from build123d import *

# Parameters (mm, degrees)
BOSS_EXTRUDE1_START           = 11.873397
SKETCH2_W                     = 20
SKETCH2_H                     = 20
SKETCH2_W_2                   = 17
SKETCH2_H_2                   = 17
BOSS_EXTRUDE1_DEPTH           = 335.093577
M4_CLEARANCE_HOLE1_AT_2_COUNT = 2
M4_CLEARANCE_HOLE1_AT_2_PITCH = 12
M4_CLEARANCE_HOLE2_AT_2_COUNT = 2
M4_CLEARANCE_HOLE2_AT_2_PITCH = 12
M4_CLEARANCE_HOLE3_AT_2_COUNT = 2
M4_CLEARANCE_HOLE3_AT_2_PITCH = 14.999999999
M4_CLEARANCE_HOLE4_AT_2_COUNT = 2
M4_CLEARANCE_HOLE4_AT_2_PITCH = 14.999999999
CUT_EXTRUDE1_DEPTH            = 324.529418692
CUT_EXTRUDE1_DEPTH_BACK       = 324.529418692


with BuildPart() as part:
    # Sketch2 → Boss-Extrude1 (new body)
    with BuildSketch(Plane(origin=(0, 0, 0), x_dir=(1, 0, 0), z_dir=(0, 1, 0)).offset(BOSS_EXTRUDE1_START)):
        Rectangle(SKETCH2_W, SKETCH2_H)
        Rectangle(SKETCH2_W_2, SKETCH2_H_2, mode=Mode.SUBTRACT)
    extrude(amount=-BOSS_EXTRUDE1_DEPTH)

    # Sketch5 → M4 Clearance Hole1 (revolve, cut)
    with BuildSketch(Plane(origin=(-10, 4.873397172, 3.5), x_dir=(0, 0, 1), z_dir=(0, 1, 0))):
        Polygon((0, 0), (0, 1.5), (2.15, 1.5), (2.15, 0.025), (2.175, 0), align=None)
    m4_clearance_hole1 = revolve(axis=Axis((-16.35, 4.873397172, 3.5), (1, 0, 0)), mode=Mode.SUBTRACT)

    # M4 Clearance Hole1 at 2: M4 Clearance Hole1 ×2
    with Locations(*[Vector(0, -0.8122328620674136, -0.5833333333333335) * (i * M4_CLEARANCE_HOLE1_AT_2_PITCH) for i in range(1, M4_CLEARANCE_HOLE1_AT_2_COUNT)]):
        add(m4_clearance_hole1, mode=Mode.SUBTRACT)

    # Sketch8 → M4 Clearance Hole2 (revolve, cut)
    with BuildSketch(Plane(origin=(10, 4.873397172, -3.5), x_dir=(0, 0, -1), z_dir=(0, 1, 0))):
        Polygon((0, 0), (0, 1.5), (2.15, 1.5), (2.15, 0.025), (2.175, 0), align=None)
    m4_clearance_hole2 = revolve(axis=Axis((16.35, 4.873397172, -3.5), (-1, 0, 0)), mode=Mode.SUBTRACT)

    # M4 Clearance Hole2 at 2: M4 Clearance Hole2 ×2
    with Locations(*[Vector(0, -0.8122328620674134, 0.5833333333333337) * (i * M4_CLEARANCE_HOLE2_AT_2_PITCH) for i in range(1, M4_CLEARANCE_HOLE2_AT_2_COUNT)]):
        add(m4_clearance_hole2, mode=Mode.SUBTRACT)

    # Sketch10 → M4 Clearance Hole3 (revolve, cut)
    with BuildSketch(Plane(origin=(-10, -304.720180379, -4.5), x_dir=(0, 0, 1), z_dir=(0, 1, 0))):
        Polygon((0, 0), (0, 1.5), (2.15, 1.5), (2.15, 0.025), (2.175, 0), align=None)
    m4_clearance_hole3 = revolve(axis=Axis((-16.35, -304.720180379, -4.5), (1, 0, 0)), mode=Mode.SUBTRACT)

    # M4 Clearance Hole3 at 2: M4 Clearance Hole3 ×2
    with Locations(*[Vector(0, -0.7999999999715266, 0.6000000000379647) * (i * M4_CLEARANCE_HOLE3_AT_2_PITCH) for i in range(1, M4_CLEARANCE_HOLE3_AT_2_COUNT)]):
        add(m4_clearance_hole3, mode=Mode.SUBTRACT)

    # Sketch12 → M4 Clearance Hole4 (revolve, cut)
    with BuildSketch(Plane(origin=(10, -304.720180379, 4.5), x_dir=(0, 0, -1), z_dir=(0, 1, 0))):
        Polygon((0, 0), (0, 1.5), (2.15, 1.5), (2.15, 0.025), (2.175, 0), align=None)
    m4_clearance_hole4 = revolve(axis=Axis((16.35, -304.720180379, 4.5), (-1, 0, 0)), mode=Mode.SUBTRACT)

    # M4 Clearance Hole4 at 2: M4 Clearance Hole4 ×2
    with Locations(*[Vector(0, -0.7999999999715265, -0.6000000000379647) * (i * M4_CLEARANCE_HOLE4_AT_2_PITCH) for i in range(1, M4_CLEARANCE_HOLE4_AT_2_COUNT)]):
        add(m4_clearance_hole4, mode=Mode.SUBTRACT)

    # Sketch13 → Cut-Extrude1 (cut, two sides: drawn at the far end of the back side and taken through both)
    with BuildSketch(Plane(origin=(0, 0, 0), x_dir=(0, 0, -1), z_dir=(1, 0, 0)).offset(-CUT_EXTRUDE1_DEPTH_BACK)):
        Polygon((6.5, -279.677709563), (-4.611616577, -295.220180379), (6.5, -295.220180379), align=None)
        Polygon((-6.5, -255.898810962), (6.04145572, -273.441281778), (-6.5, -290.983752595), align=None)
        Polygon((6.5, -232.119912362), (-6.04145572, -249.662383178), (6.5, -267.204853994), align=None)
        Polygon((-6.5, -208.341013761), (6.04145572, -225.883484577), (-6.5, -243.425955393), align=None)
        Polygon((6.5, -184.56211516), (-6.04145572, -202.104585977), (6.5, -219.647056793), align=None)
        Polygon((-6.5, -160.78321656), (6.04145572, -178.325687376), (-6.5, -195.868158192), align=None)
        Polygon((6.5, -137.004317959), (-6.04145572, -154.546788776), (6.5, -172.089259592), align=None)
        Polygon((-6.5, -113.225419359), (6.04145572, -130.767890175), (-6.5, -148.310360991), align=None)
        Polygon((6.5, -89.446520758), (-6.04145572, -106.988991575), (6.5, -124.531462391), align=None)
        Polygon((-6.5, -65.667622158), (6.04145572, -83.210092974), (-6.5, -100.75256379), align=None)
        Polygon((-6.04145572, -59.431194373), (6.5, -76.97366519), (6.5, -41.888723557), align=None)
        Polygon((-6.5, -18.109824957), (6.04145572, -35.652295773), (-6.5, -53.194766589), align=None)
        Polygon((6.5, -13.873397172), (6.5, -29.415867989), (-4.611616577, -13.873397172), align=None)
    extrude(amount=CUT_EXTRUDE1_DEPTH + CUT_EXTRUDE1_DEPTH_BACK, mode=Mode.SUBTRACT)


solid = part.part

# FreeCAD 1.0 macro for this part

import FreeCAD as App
import Part
import Sketcher

V = App.Vector
Q = App.Units.Quantity


def add_polygon(sketch, points):
    """Adds a closed chain of lines whose ends are joined by coincident constraints."""
    first, n = sketch.GeometryCount, len(points)
    for a, b in zip(points, points[1:] + points[:1]):
        sketch.addGeometry(Part.LineSegment(App.Vector(*a, 0), App.Vector(*b, 0)), False)
    for i in range(n):
        sketch.addConstraint(Sketcher.Constraint("Coincident", first + i, 2, first + (i + 1) % n, 1))

doc = App.newDocument("Part")
body = doc.addObject("PartDesign::Body", "Body")

# Sketch on XZ plane
sketch1 = body.newObject("Sketcher::SketchObject", "Sketch")
sketch1.AttachmentSupport = (doc.getObject("XZ_Plane"), [""])
sketch1.MapMode = "FlatFace"
sketch1.AttachmentOffset = App.Placement(V(0, 0, -11.873397), App.Rotation())
add_polygon(sketch1, [(-10, -10), (-10, 10), (10, 10), (10, -10)])  # lines 0-3
add_polygon(sketch1, [(8.5, 8.5), (-8.5, 8.5), (-8.5, -8.5), (8.5, -8.5)])  # lines 4-7
sketch1.addConstraint([
    Sketcher.Constraint("Vertical", 0),
    Sketcher.Constraint("Horizontal", 1),
    Sketcher.Constraint("Vertical", 2),
    Sketcher.Constraint("Horizontal", 3),
    Sketcher.Constraint("Horizontal", 4),
    Sketcher.Constraint("Vertical", 5),
    Sketcher.Constraint("Horizontal", 6),
    Sketcher.Constraint("Vertical", 7),
    Sketcher.Constraint("Symmetric", 0, 2, 2, 2, -1, 1),
    Sketcher.Constraint("Symmetric", 4, 2, 6, 2, -1, 1),
    Sketcher.Constraint("Equal", 3, 0),
    Sketcher.Constraint("Equal", 6, 5),
    Sketcher.Constraint("DistanceX", 1, 1, 1, 2, 20.0),
    Sketcher.Constraint("DistanceX", 4, 2, 4, 1, 17.0),
])
pad1 = body.newObject("PartDesign::Pad", "Pad")
pad1.Profile = sketch1
pad1.Length = 335.093577

# Sketch on XZ plane
sketch2 = body.newObject("Sketcher::SketchObject", "Sketch001")
sketch2.AttachmentSupport = (doc.getObject("XZ_Plane"), [""])
sketch2.MapMode = "FlatFace"
sketch2.AttachmentOffset = App.Placement(V(0, 0, -4.873397), App.Rotation())
add_polygon(sketch2, [(-8.5, 3.5), (-10, 3.5), (-10, 5.675), (-9.975, 5.65), (-8.5, 5.65)])  # lines 0-4
sketch2.addGeometry(Part.LineSegment(V(-10, 3.5, 0), V(-8.5, 3.5, 0)), True)  # axis
sketch2.addConstraint([
    Sketcher.Constraint("Horizontal", 0),
    Sketcher.Constraint("Vertical", 1),
    Sketcher.Constraint("Horizontal", 3),
    Sketcher.Constraint("Vertical", 4),
    Sketcher.Constraint("Horizontal", 5),
    Sketcher.Constraint("Coincident", 5, 1, 0, 2),
    Sketcher.Constraint("Vertical", 3, 2, 5, 2),
    Sketcher.Constraint("Angle", 2, Q("-45 deg")),
    Sketcher.Constraint("DistanceX", 0, 2, 0, 1, 1.5),
    Sketcher.Constraint("DistanceX", 0, 2, -1, 1, 10.0),
    Sketcher.Constraint("DistanceY", 4, 2, 4, 1, 2.15),
    Sketcher.Constraint("DistanceY", -1, 1, 0, 2, 3.5),
    Sketcher.Constraint("DistanceX", 3, 1, 3, 2, 1.475),
])
groove = body.newObject("PartDesign::Groove", "Groove")
groove.Profile = sketch2
groove.ReferenceAxis = (sketch2, ["Axis0"])
groove.Angle = 360
doc.recompute()

datumline = body.newObject("PartDesign::Line", "DatumLine")
datumline.Placement = App.Placement(V(0, 0, 0), App.Rotation(V(0, 0, 1), V(0, -0.812232862, -0.583333333)))
linearpattern = body.newObject("PartDesign::LinearPattern", "LinearPattern")
linearpattern.Originals = [groove]
linearpattern.Direction = (datumline, [""])
linearpattern.Mode = "offset"
linearpattern.Offset = 12
linearpattern.Occurrences = 2
body.Tip = linearpattern

# Sketch on XZ plane
sketch3 = body.newObject("Sketcher::SketchObject", "Sketch002")
sketch3.AttachmentSupport = (doc.getObject("XZ_Plane"), [""])
sketch3.MapMode = "FlatFace"
sketch3.AttachmentOffset = App.Placement(V(0, 0, -4.873397), App.Rotation())
add_polygon(sketch3, [(8.5, -3.5), (10, -3.5), (10, -5.675), (9.975, -5.65), (8.5, -5.65)])  # lines 0-4
sketch3.addGeometry(Part.LineSegment(V(10, -3.5, 0), V(8.5, -3.5, 0)), True)  # axis
sketch3.addConstraint([
    Sketcher.Constraint("Horizontal", 0),
    Sketcher.Constraint("Vertical", 1),
    Sketcher.Constraint("Horizontal", 3),
    Sketcher.Constraint("Vertical", 4),
    Sketcher.Constraint("Horizontal", 5),
    Sketcher.Constraint("Coincident", 5, 1, 0, 2),
    Sketcher.Constraint("Vertical", 3, 2, 5, 2),
    Sketcher.Constraint("Angle", 2, Q("135 deg")),
    Sketcher.Constraint("DistanceX", 0, 1, 0, 2, 1.5),
    Sketcher.Constraint("DistanceX", -1, 1, 0, 2, 10.0),
    Sketcher.Constraint("DistanceY", 4, 1, 4, 2, 2.15),
    Sketcher.Constraint("DistanceY", 0, 2, -1, 1, 3.5),
    Sketcher.Constraint("DistanceX", 3, 2, 3, 1, 1.475),
])
groove2 = body.newObject("PartDesign::Groove", "Groove001")
groove2.Profile = sketch3
groove2.ReferenceAxis = (sketch3, ["Axis0"])
groove2.Angle = 360
doc.recompute()

datumline2 = body.newObject("PartDesign::Line", "DatumLine001")
datumline2.Placement = App.Placement(V(0, 0, 0), App.Rotation(V(0, 0, 1), V(0, -0.812232862, 0.583333333)))
linearpattern2 = body.newObject("PartDesign::LinearPattern", "LinearPattern001")
linearpattern2.Originals = [groove2]
linearpattern2.Direction = (datumline2, [""])
linearpattern2.Mode = "offset"
linearpattern2.Offset = 12
linearpattern2.Occurrences = 2
body.Tip = linearpattern2

# Sketch on XZ plane
sketch4 = body.newObject("Sketcher::SketchObject", "Sketch003")
sketch4.AttachmentSupport = (doc.getObject("XZ_Plane"), [""])
sketch4.MapMode = "FlatFace"
sketch4.AttachmentOffset = App.Placement(V(0, 0, 304.72018), App.Rotation())
add_polygon(sketch4, [(-8.5, -4.5), (-10, -4.5), (-10, -2.325), (-9.975, -2.35), (-8.5, -2.35)])  # lines 0-4
sketch4.addGeometry(Part.LineSegment(V(-10, -4.5, 0), V(-8.5, -4.5, 0)), True)  # axis
sketch4.addConstraint([
    Sketcher.Constraint("Horizontal", 0),
    Sketcher.Constraint("Vertical", 1),
    Sketcher.Constraint("Horizontal", 3),
    Sketcher.Constraint("Vertical", 4),
    Sketcher.Constraint("Horizontal", 5),
    Sketcher.Constraint("Coincident", 5, 1, 0, 2),
    Sketcher.Constraint("Vertical", 3, 2, 5, 2),
    Sketcher.Constraint("Angle", 2, Q("-45 deg")),
    Sketcher.Constraint("DistanceX", 0, 2, 0, 1, 1.5),
    Sketcher.Constraint("DistanceX", 0, 2, -1, 1, 10.0),
    Sketcher.Constraint("DistanceY", 4, 2, 4, 1, 2.15),
    Sketcher.Constraint("DistanceY", 0, 2, -1, 1, 4.5),
    Sketcher.Constraint("DistanceX", 3, 1, 3, 2, 1.475),
])
groove3 = body.newObject("PartDesign::Groove", "Groove002")
groove3.Profile = sketch4
groove3.ReferenceAxis = (sketch4, ["Axis0"])
groove3.Angle = 360
doc.recompute()

datumline3 = body.newObject("PartDesign::Line", "DatumLine002")
datumline3.Placement = App.Placement(V(0, 0, 0), App.Rotation(V(0, 0, 1), V(0, -0.8, 0.6)))
linearpattern3 = body.newObject("PartDesign::LinearPattern", "LinearPattern002")
linearpattern3.Originals = [groove3]
linearpattern3.Direction = (datumline3, [""])
linearpattern3.Mode = "offset"
linearpattern3.Offset = 15
linearpattern3.Occurrences = 2
body.Tip = linearpattern3

# Sketch on XZ plane
sketch5 = body.newObject("Sketcher::SketchObject", "Sketch004")
sketch5.AttachmentSupport = (doc.getObject("XZ_Plane"), [""])
sketch5.MapMode = "FlatFace"
sketch5.AttachmentOffset = App.Placement(V(0, 0, 304.72018), App.Rotation())
add_polygon(sketch5, [(8.5, 4.5), (10, 4.5), (10, 2.325), (9.975, 2.35), (8.5, 2.35)])  # lines 0-4
sketch5.addGeometry(Part.LineSegment(V(10, 4.5, 0), V(8.5, 4.5, 0)), True)  # axis
sketch5.addConstraint([
    Sketcher.Constraint("Horizontal", 0),
    Sketcher.Constraint("Vertical", 1),
    Sketcher.Constraint("Horizontal", 3),
    Sketcher.Constraint("Vertical", 4),
    Sketcher.Constraint("Horizontal", 5),
    Sketcher.Constraint("Coincident", 5, 1, 0, 2),
    Sketcher.Constraint("Vertical", 3, 2, 5, 2),
    Sketcher.Constraint("Angle", 2, Q("135 deg")),
    Sketcher.Constraint("DistanceX", 0, 1, 0, 2, 1.5),
    Sketcher.Constraint("DistanceX", -1, 1, 0, 2, 10.0),
    Sketcher.Constraint("DistanceY", 4, 1, 4, 2, 2.15),
    Sketcher.Constraint("DistanceY", -1, 1, 0, 2, 4.5),
    Sketcher.Constraint("DistanceX", 3, 2, 3, 1, 1.475),
])
groove4 = body.newObject("PartDesign::Groove", "Groove003")
groove4.Profile = sketch5
groove4.ReferenceAxis = (sketch5, ["Axis0"])
groove4.Angle = 360
doc.recompute()

datumline4 = body.newObject("PartDesign::Line", "DatumLine003")
datumline4.Placement = App.Placement(V(0, 0, 0), App.Rotation(V(0, 0, 1), V(0, -0.8, -0.6)))
linearpattern4 = body.newObject("PartDesign::LinearPattern", "LinearPattern003")
linearpattern4.Originals = [groove4]
linearpattern4.Direction = (datumline4, [""])
linearpattern4.Mode = "offset"
linearpattern4.Offset = 15
linearpattern4.Occurrences = 2
body.Tip = linearpattern4

# Sketch on YZ plane
sketch6 = body.newObject("Sketcher::SketchObject", "Sketch005")
sketch6.AttachmentSupport = (doc.getObject("YZ_Plane"), [""])
sketch6.MapMode = "FlatFace"
add_polygon(sketch6, [(-279.67771, -6.5), (-295.22018, 4.611617), (-295.22018, -6.5)])  # lines 0-2
add_polygon(sketch6, [(-273.441282, -6.041456), (-255.898811, 6.5), (-290.983753, 6.5)])  # lines 3-5
add_polygon(sketch6, [(-232.119912, -6.5), (-249.662383, 6.041456), (-267.204854, -6.5)])  # lines 6-8
add_polygon(sketch6, [(-225.883485, -6.041456), (-208.341014, 6.5), (-243.425955, 6.5)])  # lines 9-11
add_polygon(sketch6, [(-184.562115, -6.5), (-202.104586, 6.041456), (-219.647057, -6.5)])  # lines 12-14
add_polygon(sketch6, [(-178.325687, -6.041456), (-160.783217, 6.5), (-195.868158, 6.5)])  # lines 15-17
add_polygon(sketch6, [(-137.004318, -6.5), (-154.546789, 6.041456), (-172.08926, -6.5)])  # lines 18-20
add_polygon(sketch6, [(-130.76789, -6.041456), (-113.225419, 6.5), (-148.310361, 6.5)])  # lines 21-23
add_polygon(sketch6, [(-89.446521, -6.5), (-106.988992, 6.041456), (-124.531462, -6.5)])  # lines 24-26
add_polygon(sketch6, [(-83.210093, -6.041456), (-65.667622, 6.5), (-100.752564, 6.5)])  # lines 27-29
add_polygon(sketch6, [(-59.431194, 6.041456), (-76.973665, -6.5), (-41.888724, -6.5)])  # lines 30-32
add_polygon(sketch6, [(-35.652296, -6.041456), (-18.109825, 6.5), (-53.194767, 6.5)])  # lines 33-35
add_polygon(sketch6, [(-29.415868, -6.5), (-13.873397, -6.5), (-13.873397, 4.611617)])  # lines 36-38
sketch6.addConstraint([
    Sketcher.Constraint("Vertical", 1),
    Sketcher.Constraint("Horizontal", 2),
    Sketcher.Constraint("Horizontal", 4),
    Sketcher.Constraint("Horizontal", 8),
    Sketcher.Constraint("Horizontal", 10),
    Sketcher.Constraint("Horizontal", 14),
    Sketcher.Constraint("Horizontal", 16),
    Sketcher.Constraint("Horizontal", 20),
    Sketcher.Constraint("Horizontal", 22),
    Sketcher.Constraint("Horizontal", 26),
    Sketcher.Constraint("Horizontal", 28),
    Sketcher.Constraint("Horizontal", 31),
    Sketcher.Constraint("Horizontal", 34),
    Sketcher.Constraint("Horizontal", 36),
    Sketcher.Constraint("Vertical", 37),
    Sketcher.Constraint("Parallel", 0, 5),
    Sketcher.Constraint("Parallel", 5, 6),
    Sketcher.Constraint("Parallel", 3, 7),
    Sketcher.Constraint("Parallel", 7, 9),
    Sketcher.Constraint("Parallel", 6, 11),
    Sketcher.Constraint("Parallel", 11, 12),
    Sketcher.Constraint("Parallel", 9, 13),
    Sketcher.Constraint("Parallel", 13, 15),
    Sketcher.Constraint("Parallel", 12, 17),
    Sketcher.Constraint("Parallel", 17, 18),
    Sketcher.Constraint("Parallel", 15, 19),
    Sketcher.Constraint("Parallel", 19, 21),
    Sketcher.Constraint("Parallel", 18, 23),
    Sketcher.Constraint("Parallel", 23, 24),
    Sketcher.Constraint("Parallel", 21, 25),
    Sketcher.Constraint("Parallel", 25, 27),
    Sketcher.Constraint("Parallel", 24, 29),
    Sketcher.Constraint("Parallel", 27, 30),
    Sketcher.Constraint("Parallel", 29, 32),
    Sketcher.Constraint("Parallel", 30, 33),
    Sketcher.Constraint("Parallel", 32, 35),
    Sketcher.Constraint("Parallel", 33, 38),
    Sketcher.Constraint("Horizontal", 2, 2, 7, 2),
    Sketcher.Constraint("Horizontal", 4, 2, 9, 2),
    Sketcher.Constraint("Horizontal", 5, 2, 11, 2),
    Sketcher.Constraint("Horizontal", 6, 2, 12, 2),
    Sketcher.Constraint("Horizontal", 8, 2, 13, 2),
    Sketcher.Constraint("Horizontal", 10, 2, 15, 2),
    Sketcher.Constraint("Horizontal", 11, 2, 17, 2),
    Sketcher.Constraint("Horizontal", 12, 2, 18, 2),
    Sketcher.Constraint("Horizontal", 14, 2, 19, 2),
    Sketcher.Constraint("Horizontal", 16, 2, 21, 2),
    Sketcher.Constraint("Horizontal", 17, 2, 23, 2),
    Sketcher.Constraint("Horizontal", 18, 2, 24, 2),
    Sketcher.Constraint("Horizontal", 20, 2, 25, 2),
    Sketcher.Constraint("Horizontal", 22, 2, 27, 2),
    Sketcher.Constraint("Horizontal", 23, 2, 29, 2),
    Sketcher.Constraint("Horizontal", 26, 2, 30, 2),
    Sketcher.Constraint("Horizontal", 24, 2, 32, 2),
    Sketcher.Constraint("Horizontal", 28, 2, 33, 2),
    Sketcher.Constraint("Horizontal", 29, 2, 35, 2),
    Sketcher.Constraint("Horizontal", 31, 2, 36, 2),
    Sketcher.Constraint("Horizontal", 0, 2, 37, 2),
    Sketcher.Constraint("Equal", 4, 8),
    Sketcher.Constraint("Equal", 2, 36),
    Sketcher.Constraint("DistanceY", 2, 2, 3, 2, 13.0),
    Sketcher.Constraint("DistanceY", 1, 2, -1, 1, 6.5),
    Sketcher.Constraint("DistanceX", 2, 1, 2, 2, 15.542471),
    Sketcher.Constraint("DistanceX", 4, 2, 4, 1, 35.084942),
    Sketcher.Constraint("DistanceX", 2, 2, 3, 2, 23.778899),
    Sketcher.Constraint("DistanceX", 5, 2, 6, 2, 23.778899),
    Sketcher.Constraint("DistanceX", 8, 2, 9, 2, 23.778899),
    Sketcher.Constraint("DistanceX", 11, 2, 12, 2, 23.778899),
    Sketcher.Constraint("DistanceX", 14, 2, 15, 2, 23.778899),
    Sketcher.Constraint("DistanceX", 17, 2, 18, 2, 23.778899),
    Sketcher.Constraint("DistanceX", 20, 2, 21, 2, 23.778899),
    Sketcher.Constraint("DistanceX", 23, 2, 24, 2, 23.778899),
    Sketcher.Constraint("DistanceX", 26, 2, 27, 2, 23.778899),
    Sketcher.Constraint("DistanceX", 28, 2, 30, 2, 23.778899),
    Sketcher.Constraint("DistanceX", 31, 2, 33, 2, 23.778899),
    Sketcher.Constraint("DistanceX", 35, 2, 36, 2, 21.778899),
    Sketcher.Constraint("Distance", 3, 21.564471),
    Sketcher.Constraint("DistanceX", 0, 2, -1, 1, 295.22018),
])
pocket1 = body.newObject("PartDesign::Pocket", "Pocket")
pocket1.Profile = sketch6
pocket1.Type = "ThroughAll"
pocket1.Midplane = True

doc.recompute()
